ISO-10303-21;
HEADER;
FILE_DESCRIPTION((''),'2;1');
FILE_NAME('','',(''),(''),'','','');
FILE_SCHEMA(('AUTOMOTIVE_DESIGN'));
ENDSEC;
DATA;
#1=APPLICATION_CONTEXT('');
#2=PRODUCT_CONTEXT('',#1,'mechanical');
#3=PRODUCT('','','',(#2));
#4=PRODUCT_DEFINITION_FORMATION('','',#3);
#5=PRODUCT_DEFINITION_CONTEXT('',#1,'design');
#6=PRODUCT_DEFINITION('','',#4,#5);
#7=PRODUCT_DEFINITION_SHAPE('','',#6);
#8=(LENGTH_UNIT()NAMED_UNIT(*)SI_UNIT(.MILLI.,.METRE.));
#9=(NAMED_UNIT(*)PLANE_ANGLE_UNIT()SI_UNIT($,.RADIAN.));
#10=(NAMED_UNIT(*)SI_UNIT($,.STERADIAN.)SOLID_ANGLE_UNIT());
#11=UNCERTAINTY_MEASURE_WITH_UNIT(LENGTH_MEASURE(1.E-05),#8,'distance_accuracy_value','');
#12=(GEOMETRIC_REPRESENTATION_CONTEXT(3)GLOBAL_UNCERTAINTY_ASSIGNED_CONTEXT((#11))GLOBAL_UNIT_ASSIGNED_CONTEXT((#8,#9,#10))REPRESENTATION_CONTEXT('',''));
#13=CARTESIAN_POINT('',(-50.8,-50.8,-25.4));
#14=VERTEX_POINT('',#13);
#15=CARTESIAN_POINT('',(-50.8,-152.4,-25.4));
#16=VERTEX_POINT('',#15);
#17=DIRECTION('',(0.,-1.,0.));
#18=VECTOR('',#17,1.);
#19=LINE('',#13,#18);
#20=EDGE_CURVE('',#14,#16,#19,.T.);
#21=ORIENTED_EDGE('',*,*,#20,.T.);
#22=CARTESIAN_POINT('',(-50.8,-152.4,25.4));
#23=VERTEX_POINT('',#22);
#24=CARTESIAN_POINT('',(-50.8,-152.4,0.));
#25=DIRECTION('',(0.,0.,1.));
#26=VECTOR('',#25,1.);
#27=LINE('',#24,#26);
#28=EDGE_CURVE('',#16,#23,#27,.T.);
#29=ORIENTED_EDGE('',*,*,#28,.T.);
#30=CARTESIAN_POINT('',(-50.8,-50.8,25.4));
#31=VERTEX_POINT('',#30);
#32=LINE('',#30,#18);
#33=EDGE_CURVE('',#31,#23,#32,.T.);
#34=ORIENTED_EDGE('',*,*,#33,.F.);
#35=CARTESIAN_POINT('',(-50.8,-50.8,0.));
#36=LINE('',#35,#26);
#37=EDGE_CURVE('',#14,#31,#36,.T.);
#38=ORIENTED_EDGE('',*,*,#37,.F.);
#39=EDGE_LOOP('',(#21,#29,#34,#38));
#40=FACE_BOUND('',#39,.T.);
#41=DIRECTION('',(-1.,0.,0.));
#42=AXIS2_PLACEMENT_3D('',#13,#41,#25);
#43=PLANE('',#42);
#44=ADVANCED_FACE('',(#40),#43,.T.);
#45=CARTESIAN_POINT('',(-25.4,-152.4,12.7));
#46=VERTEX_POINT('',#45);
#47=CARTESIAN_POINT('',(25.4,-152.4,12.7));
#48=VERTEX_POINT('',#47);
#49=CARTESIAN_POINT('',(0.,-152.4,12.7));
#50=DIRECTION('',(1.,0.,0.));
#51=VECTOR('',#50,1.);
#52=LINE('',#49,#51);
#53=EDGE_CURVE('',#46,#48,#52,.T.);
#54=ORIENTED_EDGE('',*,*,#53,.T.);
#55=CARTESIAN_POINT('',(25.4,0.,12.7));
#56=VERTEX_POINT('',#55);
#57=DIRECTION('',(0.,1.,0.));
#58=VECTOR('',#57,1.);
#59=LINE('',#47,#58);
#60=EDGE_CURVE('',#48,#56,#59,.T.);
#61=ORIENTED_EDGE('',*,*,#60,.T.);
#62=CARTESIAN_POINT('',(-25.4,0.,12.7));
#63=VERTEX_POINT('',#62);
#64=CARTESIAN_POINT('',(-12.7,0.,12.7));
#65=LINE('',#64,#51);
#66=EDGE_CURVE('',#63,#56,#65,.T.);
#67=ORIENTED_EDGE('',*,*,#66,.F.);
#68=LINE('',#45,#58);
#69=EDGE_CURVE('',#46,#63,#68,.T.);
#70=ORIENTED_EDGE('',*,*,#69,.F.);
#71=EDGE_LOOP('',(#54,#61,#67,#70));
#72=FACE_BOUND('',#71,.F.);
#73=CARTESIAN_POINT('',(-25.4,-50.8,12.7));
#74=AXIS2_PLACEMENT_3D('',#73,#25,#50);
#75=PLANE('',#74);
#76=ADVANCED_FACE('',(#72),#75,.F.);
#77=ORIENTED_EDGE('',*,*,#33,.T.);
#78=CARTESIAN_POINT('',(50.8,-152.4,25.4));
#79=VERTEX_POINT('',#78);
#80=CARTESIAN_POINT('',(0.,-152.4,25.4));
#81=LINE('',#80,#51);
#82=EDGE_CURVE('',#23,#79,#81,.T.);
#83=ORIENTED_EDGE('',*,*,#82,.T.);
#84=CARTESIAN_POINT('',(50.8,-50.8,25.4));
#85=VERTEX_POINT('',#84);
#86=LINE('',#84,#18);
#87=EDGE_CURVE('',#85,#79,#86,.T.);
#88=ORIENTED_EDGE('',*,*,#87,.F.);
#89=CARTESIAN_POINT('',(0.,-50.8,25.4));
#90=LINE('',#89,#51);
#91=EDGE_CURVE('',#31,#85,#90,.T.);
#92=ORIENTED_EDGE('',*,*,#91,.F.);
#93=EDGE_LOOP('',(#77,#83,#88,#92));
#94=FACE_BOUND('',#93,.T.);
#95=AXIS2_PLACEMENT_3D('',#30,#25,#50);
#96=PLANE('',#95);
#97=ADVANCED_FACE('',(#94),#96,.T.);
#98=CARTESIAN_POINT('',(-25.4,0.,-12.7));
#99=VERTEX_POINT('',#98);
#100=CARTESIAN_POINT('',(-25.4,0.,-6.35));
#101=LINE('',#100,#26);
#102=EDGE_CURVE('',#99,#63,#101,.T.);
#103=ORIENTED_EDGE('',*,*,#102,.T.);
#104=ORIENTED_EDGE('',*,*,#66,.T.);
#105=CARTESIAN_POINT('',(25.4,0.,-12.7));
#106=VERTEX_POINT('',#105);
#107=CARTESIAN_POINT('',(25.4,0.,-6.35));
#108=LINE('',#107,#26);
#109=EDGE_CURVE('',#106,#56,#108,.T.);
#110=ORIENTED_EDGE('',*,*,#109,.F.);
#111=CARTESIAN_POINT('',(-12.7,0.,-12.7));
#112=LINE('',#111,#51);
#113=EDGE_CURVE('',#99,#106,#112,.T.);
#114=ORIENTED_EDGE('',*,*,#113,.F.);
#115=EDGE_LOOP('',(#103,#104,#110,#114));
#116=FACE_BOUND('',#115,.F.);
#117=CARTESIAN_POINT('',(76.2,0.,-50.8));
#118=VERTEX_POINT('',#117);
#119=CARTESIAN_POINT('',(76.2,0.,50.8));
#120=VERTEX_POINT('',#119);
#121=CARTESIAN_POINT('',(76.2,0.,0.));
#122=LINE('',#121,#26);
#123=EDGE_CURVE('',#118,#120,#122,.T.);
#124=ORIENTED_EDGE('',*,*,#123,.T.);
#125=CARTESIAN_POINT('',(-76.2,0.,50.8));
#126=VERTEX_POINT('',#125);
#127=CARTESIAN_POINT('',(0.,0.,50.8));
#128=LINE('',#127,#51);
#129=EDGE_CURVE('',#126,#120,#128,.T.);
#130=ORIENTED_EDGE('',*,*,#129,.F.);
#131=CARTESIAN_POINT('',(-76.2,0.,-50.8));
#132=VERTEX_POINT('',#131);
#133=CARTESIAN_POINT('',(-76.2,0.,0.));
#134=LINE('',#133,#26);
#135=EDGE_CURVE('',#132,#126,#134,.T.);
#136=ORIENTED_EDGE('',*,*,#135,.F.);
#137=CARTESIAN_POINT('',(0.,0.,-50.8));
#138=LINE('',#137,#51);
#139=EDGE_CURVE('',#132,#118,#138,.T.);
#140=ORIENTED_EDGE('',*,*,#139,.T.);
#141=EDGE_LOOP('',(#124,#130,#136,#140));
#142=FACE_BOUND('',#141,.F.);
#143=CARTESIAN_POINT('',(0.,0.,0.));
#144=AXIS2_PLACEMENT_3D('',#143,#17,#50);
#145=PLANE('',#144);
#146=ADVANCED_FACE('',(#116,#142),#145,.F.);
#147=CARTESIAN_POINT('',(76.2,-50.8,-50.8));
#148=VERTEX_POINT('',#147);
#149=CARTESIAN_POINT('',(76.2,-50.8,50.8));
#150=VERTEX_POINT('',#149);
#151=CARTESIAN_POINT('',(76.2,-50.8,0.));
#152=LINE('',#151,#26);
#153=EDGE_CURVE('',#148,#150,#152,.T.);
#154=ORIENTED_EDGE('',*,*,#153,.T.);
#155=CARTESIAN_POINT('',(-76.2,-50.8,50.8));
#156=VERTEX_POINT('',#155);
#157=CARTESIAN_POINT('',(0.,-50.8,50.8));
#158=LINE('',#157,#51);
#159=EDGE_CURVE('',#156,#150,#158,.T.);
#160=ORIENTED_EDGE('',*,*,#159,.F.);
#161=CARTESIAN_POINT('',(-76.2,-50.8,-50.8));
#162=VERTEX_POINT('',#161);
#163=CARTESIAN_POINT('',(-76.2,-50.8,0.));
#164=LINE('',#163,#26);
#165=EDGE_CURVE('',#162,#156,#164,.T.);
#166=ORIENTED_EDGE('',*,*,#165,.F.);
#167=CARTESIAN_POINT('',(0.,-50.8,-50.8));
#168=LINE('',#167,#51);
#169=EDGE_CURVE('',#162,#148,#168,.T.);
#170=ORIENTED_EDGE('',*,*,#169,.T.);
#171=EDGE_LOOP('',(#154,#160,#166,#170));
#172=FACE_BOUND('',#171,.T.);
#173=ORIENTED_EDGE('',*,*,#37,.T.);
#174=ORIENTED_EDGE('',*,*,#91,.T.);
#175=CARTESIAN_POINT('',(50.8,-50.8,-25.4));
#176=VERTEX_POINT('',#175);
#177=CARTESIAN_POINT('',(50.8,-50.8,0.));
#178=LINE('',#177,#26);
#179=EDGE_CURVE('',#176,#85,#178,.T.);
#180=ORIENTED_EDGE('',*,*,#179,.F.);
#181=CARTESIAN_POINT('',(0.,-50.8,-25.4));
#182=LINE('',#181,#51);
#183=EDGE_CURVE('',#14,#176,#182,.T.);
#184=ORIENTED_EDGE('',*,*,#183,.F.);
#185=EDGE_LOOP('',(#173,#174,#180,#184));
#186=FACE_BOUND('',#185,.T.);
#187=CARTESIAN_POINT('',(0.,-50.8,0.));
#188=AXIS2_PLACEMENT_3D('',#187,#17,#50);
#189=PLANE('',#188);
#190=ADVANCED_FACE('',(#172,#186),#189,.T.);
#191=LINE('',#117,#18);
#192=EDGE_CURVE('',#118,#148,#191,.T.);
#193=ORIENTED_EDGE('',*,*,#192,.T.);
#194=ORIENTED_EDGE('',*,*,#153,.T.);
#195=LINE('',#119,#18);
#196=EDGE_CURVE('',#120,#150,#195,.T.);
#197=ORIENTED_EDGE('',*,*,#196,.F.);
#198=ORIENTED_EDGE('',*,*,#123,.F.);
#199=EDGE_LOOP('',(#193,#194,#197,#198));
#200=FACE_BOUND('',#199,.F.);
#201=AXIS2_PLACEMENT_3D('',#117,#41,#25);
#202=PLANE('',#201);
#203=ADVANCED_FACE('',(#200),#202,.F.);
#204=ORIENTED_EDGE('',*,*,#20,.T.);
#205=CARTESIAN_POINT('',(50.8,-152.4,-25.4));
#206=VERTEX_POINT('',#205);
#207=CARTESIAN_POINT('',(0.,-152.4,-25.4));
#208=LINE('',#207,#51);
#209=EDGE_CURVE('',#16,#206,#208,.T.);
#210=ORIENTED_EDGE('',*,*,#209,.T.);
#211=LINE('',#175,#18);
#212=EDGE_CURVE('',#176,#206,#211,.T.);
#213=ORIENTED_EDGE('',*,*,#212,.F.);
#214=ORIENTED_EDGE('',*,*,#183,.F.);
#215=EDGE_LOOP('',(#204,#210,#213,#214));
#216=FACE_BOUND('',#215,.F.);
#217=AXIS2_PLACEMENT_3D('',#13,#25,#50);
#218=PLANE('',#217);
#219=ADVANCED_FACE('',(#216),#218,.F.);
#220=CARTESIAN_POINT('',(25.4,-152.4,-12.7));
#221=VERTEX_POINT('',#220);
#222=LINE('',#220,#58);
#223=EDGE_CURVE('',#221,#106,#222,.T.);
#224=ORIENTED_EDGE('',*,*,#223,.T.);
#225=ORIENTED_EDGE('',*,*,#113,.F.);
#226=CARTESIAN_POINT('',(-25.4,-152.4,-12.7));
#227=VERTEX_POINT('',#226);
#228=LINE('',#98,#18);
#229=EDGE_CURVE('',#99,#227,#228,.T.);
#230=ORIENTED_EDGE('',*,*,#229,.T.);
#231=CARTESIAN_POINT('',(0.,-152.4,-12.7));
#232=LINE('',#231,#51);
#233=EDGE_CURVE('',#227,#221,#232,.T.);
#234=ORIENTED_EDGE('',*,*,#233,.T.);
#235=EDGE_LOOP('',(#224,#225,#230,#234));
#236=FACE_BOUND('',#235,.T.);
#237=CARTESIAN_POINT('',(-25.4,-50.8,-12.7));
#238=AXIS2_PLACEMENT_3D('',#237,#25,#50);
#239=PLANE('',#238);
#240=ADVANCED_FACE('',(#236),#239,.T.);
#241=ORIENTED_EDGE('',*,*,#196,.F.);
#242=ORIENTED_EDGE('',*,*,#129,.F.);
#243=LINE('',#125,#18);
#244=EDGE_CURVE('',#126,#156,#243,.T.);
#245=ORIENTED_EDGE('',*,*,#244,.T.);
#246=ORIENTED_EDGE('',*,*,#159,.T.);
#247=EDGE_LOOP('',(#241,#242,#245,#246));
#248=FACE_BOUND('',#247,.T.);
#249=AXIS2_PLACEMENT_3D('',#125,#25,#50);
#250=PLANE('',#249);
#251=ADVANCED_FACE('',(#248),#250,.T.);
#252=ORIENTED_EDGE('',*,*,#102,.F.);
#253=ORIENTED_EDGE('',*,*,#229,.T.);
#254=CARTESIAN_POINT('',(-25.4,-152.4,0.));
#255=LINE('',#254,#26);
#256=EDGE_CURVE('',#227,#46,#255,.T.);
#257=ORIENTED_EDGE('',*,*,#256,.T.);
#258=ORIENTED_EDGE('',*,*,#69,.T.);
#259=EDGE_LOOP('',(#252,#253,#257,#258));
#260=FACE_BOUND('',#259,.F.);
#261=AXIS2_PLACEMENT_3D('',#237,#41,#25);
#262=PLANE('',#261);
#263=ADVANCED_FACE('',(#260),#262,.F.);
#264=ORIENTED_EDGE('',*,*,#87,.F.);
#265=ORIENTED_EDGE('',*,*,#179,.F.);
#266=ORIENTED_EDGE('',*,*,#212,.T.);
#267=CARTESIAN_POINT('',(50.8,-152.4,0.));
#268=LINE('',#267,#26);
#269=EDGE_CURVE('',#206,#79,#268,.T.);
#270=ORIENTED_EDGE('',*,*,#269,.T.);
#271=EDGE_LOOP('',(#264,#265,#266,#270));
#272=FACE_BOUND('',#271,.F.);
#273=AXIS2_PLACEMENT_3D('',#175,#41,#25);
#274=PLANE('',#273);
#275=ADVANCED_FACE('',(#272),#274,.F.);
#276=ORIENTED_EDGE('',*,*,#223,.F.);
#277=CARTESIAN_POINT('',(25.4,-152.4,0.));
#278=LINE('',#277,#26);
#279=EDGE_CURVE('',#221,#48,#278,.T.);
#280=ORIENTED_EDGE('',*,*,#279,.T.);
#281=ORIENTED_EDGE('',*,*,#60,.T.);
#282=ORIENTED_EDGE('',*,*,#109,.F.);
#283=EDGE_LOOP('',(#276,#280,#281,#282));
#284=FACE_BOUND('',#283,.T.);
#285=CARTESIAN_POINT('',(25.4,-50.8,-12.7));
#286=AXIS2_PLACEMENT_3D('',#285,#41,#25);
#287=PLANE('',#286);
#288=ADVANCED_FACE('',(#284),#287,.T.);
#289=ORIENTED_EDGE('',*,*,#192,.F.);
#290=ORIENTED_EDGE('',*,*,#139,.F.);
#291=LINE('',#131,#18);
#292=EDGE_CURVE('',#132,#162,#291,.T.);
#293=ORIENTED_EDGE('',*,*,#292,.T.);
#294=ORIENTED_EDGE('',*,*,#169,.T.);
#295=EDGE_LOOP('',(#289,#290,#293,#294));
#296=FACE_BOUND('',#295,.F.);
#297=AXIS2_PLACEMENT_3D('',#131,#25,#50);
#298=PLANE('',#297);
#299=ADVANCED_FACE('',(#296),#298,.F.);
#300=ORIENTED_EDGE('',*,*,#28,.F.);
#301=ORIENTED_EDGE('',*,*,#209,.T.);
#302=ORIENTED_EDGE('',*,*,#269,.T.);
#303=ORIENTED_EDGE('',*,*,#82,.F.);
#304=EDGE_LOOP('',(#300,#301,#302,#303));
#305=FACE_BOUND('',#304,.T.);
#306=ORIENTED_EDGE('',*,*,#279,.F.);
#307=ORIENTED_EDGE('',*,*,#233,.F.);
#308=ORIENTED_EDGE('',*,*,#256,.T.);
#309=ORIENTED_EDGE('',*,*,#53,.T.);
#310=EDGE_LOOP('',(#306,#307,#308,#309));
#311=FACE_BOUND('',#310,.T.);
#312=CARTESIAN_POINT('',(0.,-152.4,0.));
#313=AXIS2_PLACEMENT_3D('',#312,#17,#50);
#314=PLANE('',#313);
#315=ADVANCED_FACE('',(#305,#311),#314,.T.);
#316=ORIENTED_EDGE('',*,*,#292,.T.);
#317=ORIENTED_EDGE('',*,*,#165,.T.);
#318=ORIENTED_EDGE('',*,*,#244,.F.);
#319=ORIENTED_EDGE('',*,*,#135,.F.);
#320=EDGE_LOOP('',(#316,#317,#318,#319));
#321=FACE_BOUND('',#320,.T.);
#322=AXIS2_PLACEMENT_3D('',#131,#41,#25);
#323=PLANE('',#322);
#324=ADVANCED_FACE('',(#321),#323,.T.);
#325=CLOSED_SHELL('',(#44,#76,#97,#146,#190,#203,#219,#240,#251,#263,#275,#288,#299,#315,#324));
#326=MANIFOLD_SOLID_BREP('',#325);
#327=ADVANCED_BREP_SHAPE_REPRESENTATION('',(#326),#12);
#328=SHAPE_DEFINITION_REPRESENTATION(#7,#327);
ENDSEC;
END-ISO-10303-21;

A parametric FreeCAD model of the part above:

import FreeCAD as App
import Part
import Sketcher
from FreeCAD import Vector
Q = App.Units.Quantity

doc = App.newDocument("Part")
body = doc.addObject("PartDesign::Body", "Body")

sketch1 = doc.addObject("Sketcher::SketchObject", "Sketch")
body.addObject(sketch1)
sketch1.AttachmentSupport = (doc.XZ_Plane, [""])
sketch1.MapMode = "FlatFace"
sketch1.addGeometry([
    Part.LineSegment(Vector(-76, 51, 0), Vector(-76, -51, 0)),
    Part.LineSegment(Vector(-76, -51, 0), Vector(76, -51, 0)),
    Part.LineSegment(Vector(76, -51, 0), Vector(76, 51, 0)),
    Part.LineSegment(Vector(76, 51, 0), Vector(-76, 51, 0)),
], False)
sketch1.addConstraint([
    Sketcher.Constraint("Coincident", 0, 2, 1, 1),
    Sketcher.Constraint("Coincident", 1, 2, 2, 1),
    Sketcher.Constraint("Coincident", 2, 2, 3, 1),
    Sketcher.Constraint("Coincident", 3, 2, 0, 1),
    Sketcher.Constraint("Vertical", 0),
    Sketcher.Constraint("Horizontal", 1),
    Sketcher.Constraint("Vertical", 2),
    Sketcher.Constraint("Horizontal", 3),
    Sketcher.Constraint("Symmetric", 0, 2, 2, 2, -1, 1),
    Sketcher.Constraint("DistanceX", 1, 1, 1, 2, Q("6 in")),
    Sketcher.Constraint("DistanceY", 0, 2, 0, 1, Q("4 in")),
])
pad1 = doc.addObject("PartDesign::Pad", "Pad")
body.addObject(pad1)
pad1.Profile = sketch1
pad1.Length = Q("2 in")

sketch2 = doc.addObject("Sketcher::SketchObject", "Sketch001")
body.addObject(sketch2)
sketch2.AttachmentSupport = (doc.XZ_Plane, [""])
sketch2.MapMode = "FlatFace"
sketch2.AttachmentOffset = App.Placement(Vector(0, 0, 2 * 25.4), App.Rotation())
sketch2.addGeometry([
    Part.LineSegment(Vector(-25, 13, 0), Vector(-25, -13, 0)),
    Part.LineSegment(Vector(-25, -13, 0), Vector(25, -13, 0)),
    Part.LineSegment(Vector(25, -13, 0), Vector(25, 13, 0)),
    Part.LineSegment(Vector(25, 13, 0), Vector(-25, 13, 0)),
], False)
sketch2.addConstraint([
    Sketcher.Constraint("Coincident", 0, 2, 1, 1),
    Sketcher.Constraint("Coincident", 1, 2, 2, 1),
    Sketcher.Constraint("Coincident", 2, 2, 3, 1),
    Sketcher.Constraint("Coincident", 3, 2, 0, 1),
    Sketcher.Constraint("Vertical", 0),
    Sketcher.Constraint("Horizontal", 1),
    Sketcher.Constraint("Vertical", 2),
    Sketcher.Constraint("Horizontal", 3),
    Sketcher.Constraint("Symmetric", 0, 2, 2, 2, -1, 1),
    Sketcher.Constraint("DistanceX", 1, 1, 1, 2, Q("2 in")),
    Sketcher.Constraint("DistanceY", 0, 2, 0, 1, Q("1 in")),
])
pocket1 = doc.addObject("PartDesign::Pocket", "Pocket")
body.addObject(pocket1)
pocket1.Profile = sketch2
pocket1.Type = "ThroughAll"

sketch3 = doc.addObject("Sketcher::SketchObject", "Sketch002")
body.addObject(sketch3)
sketch3.AttachmentSupport = (doc.XZ_Plane, [""])
sketch3.MapMode = "FlatFace"
sketch3.AttachmentOffset = App.Placement(Vector(0, 0, 2 * 25.4), App.Rotation())
sketch3.addGeometry([
    Part.LineSegment(Vector(-51, 25, 0), Vector(-51, -25, 0)),
    Part.LineSegment(Vector(-51, -25, 0), Vector(51, -25, 0)),
    Part.LineSegment(Vector(51, -25, 0), Vector(51, 25, 0)),
    Part.LineSegment(Vector(51, 25, 0), Vector(-51, 25, 0)),
    Part.LineSegment(Vector(25, -13, 0), Vector(-25, -13, 0)),
    Part.LineSegment(Vector(-25, -13, 0), Vector(-25, 13, 0)),
    Part.LineSegment(Vector(-25, 13, 0), Vector(25, 13, 0)),
    Part.LineSegment(Vector(25, 13, 0), Vector(25, -13, 0)),
], False)
sketch3.addConstraint([
    Sketcher.Constraint("Coincident", 0, 2, 1, 1),
    Sketcher.Constraint("Coincident", 1, 2, 2, 1),
    Sketcher.Constraint("Coincident", 2, 2, 3, 1),
    Sketcher.Constraint("Coincident", 3, 2, 0, 1),
    Sketcher.Constraint("Coincident", 4, 2, 5, 1),
    Sketcher.Constraint("Coincident", 5, 2, 6, 1),
    Sketcher.Constraint("Coincident", 6, 2, 7, 1),
    Sketcher.Constraint("Coincident", 7, 2, 4, 1),
    Sketcher.Constraint("Vertical", 0),
    Sketcher.Constraint("Horizontal", 1),
    Sketcher.Constraint("Vertical", 2),
    Sketcher.Constraint("Horizontal", 3),
    Sketcher.Constraint("Horizontal", 4),
    Sketcher.Constraint("Vertical", 5),
    Sketcher.Constraint("Horizontal", 6),
    Sketcher.Constraint("Vertical", 7),
    Sketcher.Constraint("Symmetric", 0, 2, 2, 2, -1, 1),
    Sketcher.Constraint("Symmetric", 4, 2, 6, 2, -1, 1),
    Sketcher.Constraint("Equal", 6, 0),
    Sketcher.Constraint("DistanceX", 1, 1, 1, 2, Q("4 in")),
    Sketcher.Constraint("DistanceX", 4, 2, 4, 1, Q("2 in")),
    Sketcher.Constraint("DistanceY", 5, 1, 5, 2, Q("1 in")),
])
pad2 = doc.addObject("PartDesign::Pad", "Pad001")
body.addObject(pad2)
pad2.Profile = sketch3
pad2.Length = Q("4 in")

doc.recompute()
